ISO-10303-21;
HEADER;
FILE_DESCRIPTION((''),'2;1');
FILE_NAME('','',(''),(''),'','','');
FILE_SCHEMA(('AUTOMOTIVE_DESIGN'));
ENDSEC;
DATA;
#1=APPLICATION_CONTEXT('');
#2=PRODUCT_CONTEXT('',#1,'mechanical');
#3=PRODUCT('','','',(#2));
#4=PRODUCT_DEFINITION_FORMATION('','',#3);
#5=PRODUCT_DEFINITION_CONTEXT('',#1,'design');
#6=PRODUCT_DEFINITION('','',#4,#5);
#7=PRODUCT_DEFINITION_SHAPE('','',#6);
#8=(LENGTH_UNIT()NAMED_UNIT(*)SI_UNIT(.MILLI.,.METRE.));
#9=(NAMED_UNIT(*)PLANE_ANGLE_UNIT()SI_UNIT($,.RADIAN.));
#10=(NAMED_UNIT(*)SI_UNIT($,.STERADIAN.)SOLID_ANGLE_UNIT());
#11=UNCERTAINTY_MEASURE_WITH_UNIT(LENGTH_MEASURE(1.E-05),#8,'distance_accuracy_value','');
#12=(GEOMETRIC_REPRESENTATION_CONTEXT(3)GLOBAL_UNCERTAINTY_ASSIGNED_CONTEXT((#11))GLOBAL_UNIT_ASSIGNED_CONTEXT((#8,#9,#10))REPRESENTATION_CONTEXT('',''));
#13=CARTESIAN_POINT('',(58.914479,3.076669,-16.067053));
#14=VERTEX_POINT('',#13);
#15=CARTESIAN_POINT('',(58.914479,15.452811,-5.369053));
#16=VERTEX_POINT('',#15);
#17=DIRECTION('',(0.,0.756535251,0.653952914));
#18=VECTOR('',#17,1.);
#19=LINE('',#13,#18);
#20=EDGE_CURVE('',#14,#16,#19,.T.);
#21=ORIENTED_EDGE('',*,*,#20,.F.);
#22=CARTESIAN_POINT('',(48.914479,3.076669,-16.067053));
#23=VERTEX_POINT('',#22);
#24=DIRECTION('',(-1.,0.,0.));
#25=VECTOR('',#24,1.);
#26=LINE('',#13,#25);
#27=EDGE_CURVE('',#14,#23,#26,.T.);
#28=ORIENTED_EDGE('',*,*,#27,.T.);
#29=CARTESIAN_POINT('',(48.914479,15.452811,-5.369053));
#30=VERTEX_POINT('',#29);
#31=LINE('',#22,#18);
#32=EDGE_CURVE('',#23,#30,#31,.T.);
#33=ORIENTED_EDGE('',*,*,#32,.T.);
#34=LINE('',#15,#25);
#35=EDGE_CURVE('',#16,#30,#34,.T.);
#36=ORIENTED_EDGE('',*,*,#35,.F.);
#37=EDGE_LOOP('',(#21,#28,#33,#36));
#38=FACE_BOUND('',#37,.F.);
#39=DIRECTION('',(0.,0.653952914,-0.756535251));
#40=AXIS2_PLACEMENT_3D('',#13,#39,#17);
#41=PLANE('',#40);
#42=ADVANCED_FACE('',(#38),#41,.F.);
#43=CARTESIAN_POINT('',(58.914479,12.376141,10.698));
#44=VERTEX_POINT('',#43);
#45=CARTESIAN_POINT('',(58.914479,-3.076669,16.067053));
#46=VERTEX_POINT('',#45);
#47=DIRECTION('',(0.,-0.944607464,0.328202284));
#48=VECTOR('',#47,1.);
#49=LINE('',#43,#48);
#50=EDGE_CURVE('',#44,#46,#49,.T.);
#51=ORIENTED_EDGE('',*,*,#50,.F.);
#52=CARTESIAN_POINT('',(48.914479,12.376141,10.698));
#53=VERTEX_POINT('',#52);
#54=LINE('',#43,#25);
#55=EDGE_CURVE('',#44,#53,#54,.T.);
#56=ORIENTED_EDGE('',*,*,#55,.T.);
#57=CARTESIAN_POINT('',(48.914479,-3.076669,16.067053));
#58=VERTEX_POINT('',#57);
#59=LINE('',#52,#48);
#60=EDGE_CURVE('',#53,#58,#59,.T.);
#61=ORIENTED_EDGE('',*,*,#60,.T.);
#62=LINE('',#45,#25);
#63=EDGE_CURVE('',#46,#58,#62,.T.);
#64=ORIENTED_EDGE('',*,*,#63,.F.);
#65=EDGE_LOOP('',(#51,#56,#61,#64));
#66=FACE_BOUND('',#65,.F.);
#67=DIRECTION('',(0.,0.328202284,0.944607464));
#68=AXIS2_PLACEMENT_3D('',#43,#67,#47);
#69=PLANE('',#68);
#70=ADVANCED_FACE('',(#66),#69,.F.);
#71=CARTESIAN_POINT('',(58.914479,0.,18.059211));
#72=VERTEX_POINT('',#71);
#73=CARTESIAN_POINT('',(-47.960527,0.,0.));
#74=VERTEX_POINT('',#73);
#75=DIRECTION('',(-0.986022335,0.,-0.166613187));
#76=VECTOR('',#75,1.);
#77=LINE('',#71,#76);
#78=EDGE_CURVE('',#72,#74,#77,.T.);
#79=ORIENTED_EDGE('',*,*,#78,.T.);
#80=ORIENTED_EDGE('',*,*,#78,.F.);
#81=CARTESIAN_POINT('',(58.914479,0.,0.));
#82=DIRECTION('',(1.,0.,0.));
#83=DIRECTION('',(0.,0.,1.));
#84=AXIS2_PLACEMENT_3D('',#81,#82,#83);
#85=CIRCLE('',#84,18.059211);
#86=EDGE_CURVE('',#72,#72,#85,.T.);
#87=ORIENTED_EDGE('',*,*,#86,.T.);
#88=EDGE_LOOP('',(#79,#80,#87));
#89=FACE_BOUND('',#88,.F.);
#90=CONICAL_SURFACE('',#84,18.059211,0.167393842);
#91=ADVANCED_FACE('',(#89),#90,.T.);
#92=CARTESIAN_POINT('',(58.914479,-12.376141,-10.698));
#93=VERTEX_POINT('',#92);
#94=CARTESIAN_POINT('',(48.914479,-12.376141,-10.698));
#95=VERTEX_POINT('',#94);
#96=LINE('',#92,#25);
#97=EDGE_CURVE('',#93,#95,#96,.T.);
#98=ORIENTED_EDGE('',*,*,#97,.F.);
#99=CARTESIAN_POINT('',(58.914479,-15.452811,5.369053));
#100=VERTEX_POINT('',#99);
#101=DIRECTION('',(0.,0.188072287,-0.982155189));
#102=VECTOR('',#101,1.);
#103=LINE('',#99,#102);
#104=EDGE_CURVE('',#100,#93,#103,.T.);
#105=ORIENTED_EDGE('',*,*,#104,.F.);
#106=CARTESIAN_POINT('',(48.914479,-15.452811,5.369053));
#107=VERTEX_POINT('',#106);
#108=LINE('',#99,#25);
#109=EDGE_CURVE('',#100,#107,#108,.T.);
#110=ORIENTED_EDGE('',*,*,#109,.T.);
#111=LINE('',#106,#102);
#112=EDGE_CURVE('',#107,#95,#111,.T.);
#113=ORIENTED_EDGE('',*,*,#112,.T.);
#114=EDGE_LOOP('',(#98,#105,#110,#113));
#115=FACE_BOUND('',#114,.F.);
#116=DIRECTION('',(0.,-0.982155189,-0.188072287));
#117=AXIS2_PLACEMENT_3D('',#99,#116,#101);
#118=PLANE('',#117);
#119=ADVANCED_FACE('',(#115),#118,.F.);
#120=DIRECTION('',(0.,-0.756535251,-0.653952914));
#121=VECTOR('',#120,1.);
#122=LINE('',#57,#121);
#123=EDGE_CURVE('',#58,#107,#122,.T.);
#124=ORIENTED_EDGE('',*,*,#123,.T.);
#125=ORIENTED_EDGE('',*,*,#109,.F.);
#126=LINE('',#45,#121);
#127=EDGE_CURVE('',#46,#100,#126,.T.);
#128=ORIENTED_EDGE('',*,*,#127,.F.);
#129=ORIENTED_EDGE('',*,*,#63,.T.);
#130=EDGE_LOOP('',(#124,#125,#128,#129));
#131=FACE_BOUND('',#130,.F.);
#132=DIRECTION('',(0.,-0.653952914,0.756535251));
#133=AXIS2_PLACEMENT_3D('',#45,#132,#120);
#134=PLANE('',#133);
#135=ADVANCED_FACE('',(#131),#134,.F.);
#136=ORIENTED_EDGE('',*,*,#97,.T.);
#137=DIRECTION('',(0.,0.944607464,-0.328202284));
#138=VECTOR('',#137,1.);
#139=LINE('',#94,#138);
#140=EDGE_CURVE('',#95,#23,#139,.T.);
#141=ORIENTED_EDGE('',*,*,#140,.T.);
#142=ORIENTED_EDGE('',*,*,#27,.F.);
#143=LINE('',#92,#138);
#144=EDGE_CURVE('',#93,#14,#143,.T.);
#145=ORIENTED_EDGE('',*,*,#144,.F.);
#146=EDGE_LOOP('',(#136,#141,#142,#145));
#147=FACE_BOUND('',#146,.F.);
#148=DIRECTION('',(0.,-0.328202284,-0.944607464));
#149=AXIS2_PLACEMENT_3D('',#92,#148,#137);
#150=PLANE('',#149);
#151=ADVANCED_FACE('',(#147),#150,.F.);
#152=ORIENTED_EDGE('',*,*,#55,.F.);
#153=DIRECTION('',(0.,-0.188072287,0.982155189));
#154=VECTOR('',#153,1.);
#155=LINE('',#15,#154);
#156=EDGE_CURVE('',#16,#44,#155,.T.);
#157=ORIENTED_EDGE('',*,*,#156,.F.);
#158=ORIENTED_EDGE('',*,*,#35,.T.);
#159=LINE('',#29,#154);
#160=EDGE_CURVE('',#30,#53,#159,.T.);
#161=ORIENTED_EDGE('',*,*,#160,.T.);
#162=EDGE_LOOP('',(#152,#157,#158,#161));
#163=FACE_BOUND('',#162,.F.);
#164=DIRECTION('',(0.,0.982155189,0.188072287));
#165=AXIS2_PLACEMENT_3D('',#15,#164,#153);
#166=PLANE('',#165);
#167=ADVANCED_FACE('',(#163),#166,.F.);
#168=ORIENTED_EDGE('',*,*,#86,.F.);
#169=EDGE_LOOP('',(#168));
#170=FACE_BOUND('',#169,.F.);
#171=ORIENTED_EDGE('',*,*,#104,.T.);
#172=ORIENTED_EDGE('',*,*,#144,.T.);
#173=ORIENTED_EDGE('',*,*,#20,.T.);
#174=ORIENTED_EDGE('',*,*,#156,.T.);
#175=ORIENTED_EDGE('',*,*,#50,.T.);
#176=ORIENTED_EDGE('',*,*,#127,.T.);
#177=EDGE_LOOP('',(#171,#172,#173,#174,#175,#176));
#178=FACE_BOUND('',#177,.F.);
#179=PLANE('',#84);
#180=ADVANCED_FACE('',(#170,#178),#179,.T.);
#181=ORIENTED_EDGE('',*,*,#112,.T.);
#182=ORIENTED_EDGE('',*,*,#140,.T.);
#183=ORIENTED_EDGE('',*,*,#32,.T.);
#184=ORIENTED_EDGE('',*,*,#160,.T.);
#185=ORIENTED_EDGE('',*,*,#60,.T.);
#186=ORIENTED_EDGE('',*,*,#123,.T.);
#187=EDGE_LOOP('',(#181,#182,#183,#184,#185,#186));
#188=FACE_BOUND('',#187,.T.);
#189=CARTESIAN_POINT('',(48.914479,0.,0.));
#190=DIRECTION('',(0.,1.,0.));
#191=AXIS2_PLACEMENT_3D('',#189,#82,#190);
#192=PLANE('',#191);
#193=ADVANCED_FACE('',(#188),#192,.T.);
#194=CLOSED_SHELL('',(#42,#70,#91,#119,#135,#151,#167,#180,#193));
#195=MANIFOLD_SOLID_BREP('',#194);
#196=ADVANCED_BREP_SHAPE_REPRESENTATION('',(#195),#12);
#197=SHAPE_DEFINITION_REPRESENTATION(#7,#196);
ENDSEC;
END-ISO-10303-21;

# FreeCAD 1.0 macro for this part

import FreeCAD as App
import Part
import Sketcher
Q = App.Units.Quantity


def add_polygon(sketch, points):
    """Adds a closed chain of lines whose ends are joined by coincident constraints."""
    first, n = sketch.GeometryCount, len(points)
    for a, b in zip(points, points[1:] + points[:1]):
        sketch.addGeometry(Part.LineSegment(App.Vector(*a, 0), App.Vector(*b, 0)), False)
    for i in range(n):
        sketch.addConstraint(Sketcher.Constraint("Coincident", first + i, 2, first + (i + 1) % n, 1))

doc = App.newDocument("Part")
body = doc.addObject("PartDesign::Body", "Body")

sketch1 = doc.addObject("Sketcher::SketchObject", "Sketch")
body.addObject(sketch1)
sketch1.AttachmentSupport = (doc.XZ_Plane, [""])
sketch1.MapMode = "FlatFace"
add_polygon(sketch1, [(58.914479, 18.059211), (-47.960527, 0), (58.914479, 0)])
sketch1.addConstraint(Sketcher.Constraint("Horizontal", 1))
sketch1.addConstraint(Sketcher.Constraint("Vertical", 2))
sketch1.addConstraint(Sketcher.Constraint("PointOnObject", 0, 2, -1))
sketch1.addConstraint(Sketcher.Constraint("DistanceY", 2, 1, 2, 2, Q("18.059211 mm")))
sketch1.addConstraint(Sketcher.Constraint("DistanceX", 1, 1, 1, 2, Q("106.875006 mm")))
sketch1.addConstraint(Sketcher.Constraint("DistanceX", -1, 1, 1, 2, Q("58.914479 mm")))
revolution = doc.addObject("PartDesign::Revolution", "Revolution")
body.addObject(revolution)
revolution.Profile = sketch1
revolution.ReferenceAxis = (sketch1, ["H_Axis"])
revolution.Angle = 360

sketch2 = doc.addObject("Sketcher::SketchObject", "Sketch001")
body.addObject(sketch2)
sketch2.AttachmentSupport = (doc.YZ_Plane, [""])
sketch2.MapMode = "FlatFace"
sketch2.AttachmentOffset = App.Placement(App.Vector(0, 0, 58.914479), App.Rotation())
add_polygon(sketch2, [(15.452811, -5.369053), (12.376141, 10.698), (-3.076669, 16.067053), (-15.452811, 5.369053), (-12.376141, -10.698), (3.076669, -16.067053)])
sketch2.addConstraint(Sketcher.Constraint("Symmetric", 0, 2, 3, 2, -1, 1))
sketch2.addConstraint(Sketcher.Constraint("Symmetric", 1, 2, 4, 2, -1, 1))
sketch2.addConstraint(Sketcher.Constraint("Symmetric", 2, 2, 5, 2, -1, 1))
sketch2.addConstraint(Sketcher.Constraint("Equal", 0, 1))
sketch2.addConstraint(Sketcher.Constraint("Equal", 1, 2))
sketch2.addConstraint(Sketcher.Constraint("DistanceY", -1, 1, 0, 2, Q("10.698 mm")))
sketch2.addConstraint(Sketcher.Constraint("DistanceY", 2, 2, 1, 2, Q("10.698 mm")))
sketch2.addConstraint(Sketcher.Constraint("DistanceX", -1, 1, 0, 2, Q("12.376141 mm")))
sketch2.addConstraint(Sketcher.Constraint("DistanceX", 1, 2, -1, 1, Q("3.076669 mm")))
pocket1 = doc.addObject("PartDesign::Pocket", "Pocket")
body.addObject(pocket1)
pocket1.Profile = sketch2
pocket1.Length = 10

doc.recompute()
